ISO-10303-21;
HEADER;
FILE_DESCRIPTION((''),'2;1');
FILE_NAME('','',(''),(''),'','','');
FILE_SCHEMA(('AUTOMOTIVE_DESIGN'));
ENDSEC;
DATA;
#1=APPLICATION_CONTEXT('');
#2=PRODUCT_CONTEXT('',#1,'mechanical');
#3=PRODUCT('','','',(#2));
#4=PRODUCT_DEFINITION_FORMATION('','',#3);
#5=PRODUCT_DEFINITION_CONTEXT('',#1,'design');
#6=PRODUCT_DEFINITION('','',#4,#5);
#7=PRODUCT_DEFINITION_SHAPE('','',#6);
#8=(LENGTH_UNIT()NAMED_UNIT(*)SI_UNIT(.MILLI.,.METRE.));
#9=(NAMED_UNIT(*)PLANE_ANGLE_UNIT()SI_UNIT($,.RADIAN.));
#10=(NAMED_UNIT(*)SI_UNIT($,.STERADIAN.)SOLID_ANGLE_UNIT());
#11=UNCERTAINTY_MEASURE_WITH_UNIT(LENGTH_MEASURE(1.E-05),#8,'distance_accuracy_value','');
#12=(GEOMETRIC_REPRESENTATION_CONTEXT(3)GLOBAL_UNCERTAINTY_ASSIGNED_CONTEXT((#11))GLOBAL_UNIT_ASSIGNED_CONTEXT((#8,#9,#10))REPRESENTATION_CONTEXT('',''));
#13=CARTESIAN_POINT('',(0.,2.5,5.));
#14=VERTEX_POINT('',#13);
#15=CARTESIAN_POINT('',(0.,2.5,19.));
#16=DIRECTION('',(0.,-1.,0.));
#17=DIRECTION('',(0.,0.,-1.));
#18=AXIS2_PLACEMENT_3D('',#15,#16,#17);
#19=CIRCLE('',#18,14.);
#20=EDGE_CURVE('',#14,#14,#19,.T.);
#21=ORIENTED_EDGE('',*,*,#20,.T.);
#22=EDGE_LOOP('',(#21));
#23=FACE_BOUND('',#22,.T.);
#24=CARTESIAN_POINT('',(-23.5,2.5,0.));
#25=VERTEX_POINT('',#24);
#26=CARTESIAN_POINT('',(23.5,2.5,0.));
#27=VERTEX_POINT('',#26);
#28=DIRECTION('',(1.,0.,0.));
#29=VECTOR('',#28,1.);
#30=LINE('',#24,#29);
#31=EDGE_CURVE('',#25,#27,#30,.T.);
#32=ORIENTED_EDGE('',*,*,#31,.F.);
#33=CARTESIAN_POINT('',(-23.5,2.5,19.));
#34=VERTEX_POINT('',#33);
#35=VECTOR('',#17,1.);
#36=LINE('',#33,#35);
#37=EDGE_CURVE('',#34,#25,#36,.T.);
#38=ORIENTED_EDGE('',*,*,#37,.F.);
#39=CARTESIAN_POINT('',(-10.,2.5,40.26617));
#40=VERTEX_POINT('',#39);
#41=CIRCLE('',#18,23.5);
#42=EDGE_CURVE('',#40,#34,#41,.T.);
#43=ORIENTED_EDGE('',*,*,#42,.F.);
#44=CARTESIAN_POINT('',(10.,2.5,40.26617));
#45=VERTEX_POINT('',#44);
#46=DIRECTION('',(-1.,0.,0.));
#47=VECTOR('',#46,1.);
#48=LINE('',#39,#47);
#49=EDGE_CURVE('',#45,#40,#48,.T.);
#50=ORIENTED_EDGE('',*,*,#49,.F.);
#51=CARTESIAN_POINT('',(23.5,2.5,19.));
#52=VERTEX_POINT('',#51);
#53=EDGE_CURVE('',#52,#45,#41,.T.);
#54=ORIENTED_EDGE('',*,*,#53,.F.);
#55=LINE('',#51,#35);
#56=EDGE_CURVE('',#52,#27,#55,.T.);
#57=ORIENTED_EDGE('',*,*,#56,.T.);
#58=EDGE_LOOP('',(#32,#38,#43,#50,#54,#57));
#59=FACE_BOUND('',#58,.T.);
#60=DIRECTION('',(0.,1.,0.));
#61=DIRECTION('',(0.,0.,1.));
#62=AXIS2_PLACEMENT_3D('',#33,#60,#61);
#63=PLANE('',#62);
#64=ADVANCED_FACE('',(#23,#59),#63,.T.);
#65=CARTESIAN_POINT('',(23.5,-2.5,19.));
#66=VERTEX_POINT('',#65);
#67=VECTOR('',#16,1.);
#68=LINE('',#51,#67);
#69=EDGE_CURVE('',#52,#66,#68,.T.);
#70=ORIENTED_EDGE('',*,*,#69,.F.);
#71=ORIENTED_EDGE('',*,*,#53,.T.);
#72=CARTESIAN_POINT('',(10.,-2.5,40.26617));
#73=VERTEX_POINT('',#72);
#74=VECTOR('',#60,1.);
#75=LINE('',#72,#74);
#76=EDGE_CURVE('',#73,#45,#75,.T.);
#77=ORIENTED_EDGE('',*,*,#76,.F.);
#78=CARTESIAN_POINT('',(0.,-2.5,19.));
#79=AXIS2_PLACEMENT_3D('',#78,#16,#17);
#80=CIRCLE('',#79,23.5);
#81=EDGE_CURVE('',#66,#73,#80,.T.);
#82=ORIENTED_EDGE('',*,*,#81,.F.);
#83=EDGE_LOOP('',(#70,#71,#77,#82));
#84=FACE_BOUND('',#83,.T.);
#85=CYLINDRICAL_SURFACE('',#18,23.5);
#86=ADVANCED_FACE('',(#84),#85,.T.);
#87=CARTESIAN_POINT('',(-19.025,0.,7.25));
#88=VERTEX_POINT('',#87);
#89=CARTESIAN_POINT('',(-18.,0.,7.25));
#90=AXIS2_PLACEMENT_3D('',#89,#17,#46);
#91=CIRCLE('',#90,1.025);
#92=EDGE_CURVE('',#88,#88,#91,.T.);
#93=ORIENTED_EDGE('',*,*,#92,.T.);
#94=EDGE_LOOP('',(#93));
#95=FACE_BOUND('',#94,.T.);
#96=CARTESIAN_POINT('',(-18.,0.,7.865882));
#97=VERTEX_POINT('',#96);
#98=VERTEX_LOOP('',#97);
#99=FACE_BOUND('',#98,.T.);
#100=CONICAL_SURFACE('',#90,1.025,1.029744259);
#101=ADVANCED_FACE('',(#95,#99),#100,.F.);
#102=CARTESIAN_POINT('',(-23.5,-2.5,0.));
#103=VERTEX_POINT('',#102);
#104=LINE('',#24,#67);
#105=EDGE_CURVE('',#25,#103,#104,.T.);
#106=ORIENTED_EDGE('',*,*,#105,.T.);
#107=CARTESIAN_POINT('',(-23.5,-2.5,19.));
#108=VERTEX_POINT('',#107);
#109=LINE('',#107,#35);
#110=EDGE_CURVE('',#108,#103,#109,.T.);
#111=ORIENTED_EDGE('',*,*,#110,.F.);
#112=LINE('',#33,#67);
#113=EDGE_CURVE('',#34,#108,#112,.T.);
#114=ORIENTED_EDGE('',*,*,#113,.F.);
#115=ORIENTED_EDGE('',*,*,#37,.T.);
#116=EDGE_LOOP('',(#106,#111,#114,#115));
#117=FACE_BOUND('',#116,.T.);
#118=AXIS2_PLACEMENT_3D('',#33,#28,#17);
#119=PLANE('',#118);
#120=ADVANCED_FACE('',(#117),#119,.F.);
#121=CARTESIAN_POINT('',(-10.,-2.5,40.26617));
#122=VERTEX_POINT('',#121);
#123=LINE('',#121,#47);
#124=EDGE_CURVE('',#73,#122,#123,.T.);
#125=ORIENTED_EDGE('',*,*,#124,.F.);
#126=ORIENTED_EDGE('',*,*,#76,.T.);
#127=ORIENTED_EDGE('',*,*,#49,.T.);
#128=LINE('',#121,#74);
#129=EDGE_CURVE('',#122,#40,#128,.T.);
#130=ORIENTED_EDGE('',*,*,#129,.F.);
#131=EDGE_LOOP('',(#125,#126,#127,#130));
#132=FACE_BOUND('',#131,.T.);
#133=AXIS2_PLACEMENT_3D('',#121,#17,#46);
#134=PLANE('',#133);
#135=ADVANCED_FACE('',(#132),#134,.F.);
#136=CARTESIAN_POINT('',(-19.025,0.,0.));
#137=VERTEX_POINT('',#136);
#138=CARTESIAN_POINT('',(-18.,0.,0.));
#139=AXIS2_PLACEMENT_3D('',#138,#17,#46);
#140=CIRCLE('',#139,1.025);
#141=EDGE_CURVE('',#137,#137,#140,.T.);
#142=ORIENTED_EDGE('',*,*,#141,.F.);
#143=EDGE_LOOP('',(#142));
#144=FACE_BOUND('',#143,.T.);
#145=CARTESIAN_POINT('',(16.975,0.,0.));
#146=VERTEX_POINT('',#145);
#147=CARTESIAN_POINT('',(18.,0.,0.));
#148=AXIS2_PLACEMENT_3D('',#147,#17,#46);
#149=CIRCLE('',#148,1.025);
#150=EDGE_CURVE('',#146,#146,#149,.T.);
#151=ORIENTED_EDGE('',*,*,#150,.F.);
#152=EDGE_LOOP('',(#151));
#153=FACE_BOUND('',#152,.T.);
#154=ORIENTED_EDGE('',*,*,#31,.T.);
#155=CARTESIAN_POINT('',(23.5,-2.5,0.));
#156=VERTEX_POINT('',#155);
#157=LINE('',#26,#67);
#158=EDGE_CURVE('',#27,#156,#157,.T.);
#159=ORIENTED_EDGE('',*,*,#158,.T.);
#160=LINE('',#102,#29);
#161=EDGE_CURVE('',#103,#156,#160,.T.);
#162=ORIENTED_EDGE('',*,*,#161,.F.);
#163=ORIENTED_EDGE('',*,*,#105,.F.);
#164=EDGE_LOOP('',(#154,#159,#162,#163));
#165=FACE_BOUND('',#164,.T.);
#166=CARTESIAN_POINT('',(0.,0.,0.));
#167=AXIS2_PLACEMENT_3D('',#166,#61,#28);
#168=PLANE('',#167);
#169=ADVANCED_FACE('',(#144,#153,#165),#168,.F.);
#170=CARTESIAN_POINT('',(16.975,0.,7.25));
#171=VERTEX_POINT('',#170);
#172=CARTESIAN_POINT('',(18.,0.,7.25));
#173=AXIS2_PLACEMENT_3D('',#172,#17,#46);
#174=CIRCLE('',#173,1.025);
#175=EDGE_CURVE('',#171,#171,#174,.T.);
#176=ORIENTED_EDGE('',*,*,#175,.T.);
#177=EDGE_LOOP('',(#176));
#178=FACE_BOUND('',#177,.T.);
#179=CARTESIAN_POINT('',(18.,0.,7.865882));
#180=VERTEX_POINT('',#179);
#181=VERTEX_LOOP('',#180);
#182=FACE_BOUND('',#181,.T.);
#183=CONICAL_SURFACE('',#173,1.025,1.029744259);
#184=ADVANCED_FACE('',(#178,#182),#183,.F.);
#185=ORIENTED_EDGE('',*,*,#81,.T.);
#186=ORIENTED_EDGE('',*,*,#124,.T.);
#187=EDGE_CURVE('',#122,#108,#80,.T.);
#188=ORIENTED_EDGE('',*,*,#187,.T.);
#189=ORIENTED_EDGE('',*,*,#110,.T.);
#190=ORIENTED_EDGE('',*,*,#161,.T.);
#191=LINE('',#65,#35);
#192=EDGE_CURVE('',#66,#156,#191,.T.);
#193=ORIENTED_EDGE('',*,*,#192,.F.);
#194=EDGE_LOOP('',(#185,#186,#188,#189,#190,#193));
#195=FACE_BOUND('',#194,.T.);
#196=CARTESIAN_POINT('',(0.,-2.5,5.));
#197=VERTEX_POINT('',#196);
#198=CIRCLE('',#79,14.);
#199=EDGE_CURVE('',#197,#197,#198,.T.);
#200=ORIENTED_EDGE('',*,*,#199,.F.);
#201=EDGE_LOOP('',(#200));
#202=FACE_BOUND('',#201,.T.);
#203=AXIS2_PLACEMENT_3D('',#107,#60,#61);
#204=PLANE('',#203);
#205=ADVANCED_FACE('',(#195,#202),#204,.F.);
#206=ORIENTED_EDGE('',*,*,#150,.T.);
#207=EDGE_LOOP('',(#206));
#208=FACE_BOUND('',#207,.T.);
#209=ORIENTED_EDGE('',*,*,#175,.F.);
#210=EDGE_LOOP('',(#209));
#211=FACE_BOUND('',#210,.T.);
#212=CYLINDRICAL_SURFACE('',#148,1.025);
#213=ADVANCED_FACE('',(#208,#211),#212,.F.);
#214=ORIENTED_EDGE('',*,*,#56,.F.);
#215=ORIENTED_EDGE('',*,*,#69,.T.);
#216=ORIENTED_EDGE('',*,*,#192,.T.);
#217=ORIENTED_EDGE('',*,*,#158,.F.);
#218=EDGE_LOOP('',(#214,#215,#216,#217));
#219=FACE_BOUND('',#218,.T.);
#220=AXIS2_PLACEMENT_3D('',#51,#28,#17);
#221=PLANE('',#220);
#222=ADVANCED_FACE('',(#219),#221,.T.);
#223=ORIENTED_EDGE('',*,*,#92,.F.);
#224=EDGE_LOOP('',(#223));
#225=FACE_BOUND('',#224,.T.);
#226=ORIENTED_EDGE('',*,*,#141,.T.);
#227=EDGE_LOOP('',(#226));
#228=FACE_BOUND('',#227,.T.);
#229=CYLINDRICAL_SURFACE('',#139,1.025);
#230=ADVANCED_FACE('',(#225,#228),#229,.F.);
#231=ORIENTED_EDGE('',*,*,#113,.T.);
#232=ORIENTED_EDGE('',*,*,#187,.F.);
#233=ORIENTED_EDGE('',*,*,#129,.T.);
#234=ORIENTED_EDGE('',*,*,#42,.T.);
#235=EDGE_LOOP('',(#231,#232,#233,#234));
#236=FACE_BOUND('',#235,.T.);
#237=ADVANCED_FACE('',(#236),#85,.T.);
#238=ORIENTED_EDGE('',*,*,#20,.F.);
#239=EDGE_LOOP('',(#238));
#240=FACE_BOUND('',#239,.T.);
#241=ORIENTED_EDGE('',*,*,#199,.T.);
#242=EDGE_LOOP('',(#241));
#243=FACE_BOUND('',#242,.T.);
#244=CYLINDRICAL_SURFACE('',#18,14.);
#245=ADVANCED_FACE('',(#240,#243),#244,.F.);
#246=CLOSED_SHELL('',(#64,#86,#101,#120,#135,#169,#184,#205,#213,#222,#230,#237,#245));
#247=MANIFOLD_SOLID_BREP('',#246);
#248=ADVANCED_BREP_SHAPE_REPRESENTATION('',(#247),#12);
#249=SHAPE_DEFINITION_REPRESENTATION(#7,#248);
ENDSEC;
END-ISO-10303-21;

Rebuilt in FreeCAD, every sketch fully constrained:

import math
import FreeCAD as App
import Part
import Sketcher

doc = App.newDocument("Part")
body = doc.addObject("PartDesign::Body", "Body")

sketch1 = doc.addObject("Sketcher::SketchObject", "Sketch")
body.addObject(sketch1)
sketch1.AttachmentSupport = (doc.XY_Plane, [""])
sketch1.MapMode = "FlatFace"
sketch1.addGeometry([
    Part.LineSegment(App.Vector(-24, 2, 0), App.Vector(-24, -2, 0)),
    Part.LineSegment(App.Vector(-24, -2, 0), App.Vector(24, -2, 0)),
    Part.LineSegment(App.Vector(24, -2, 0), App.Vector(24, 2, 0)),
    Part.LineSegment(App.Vector(24, 2, 0), App.Vector(-24, 2, 0)),
], False)
sketch1.addConstraint([
    Sketcher.Constraint("Coincident", 0, 2, 1, 1),
    Sketcher.Constraint("Coincident", 1, 2, 2, 1),
    Sketcher.Constraint("Coincident", 2, 2, 3, 1),
    Sketcher.Constraint("Coincident", 3, 2, 0, 1),
    Sketcher.Constraint("Vertical", 0),
    Sketcher.Constraint("Horizontal", 1),
    Sketcher.Constraint("Vertical", 2),
    Sketcher.Constraint("Horizontal", 3),
    Sketcher.Constraint("Symmetric", 0, 2, 2, 2, -1, 1),
    Sketcher.Constraint("DistanceX", 1, 1, 1, 2, 47.0),
    Sketcher.Constraint("DistanceY", 0, 2, 0, 1, 5.0),
])
pad1 = doc.addObject("PartDesign::Pad", "Pad")
body.addObject(pad1)
pad1.Profile = sketch1
pad1.Length = 19

sketch2 = doc.addObject("Sketcher::SketchObject", "Sketch001")
body.addObject(sketch2)
sketch2.AttachmentSupport = (doc.XZ_Plane, [""])
sketch2.MapMode = "FlatFace"
sketch2.AttachmentOffset = App.Placement(App.Vector(0, 0, 2.5), App.Rotation())
sketch2.addGeometry(Part.Circle(App.Vector(0, 19, 0), App.Vector(0, 0, 1), 24), False)
sketch2.addConstraint([
    Sketcher.Constraint("PointOnObject", 0, 3, -2),
    Sketcher.Constraint("Diameter", 0, 47.0),
    Sketcher.Constraint("DistanceY", -1, 1, 0, 3, 19.0),
])
pad2 = doc.addObject("PartDesign::Pad", "Pad001")
body.addObject(pad2)
pad2.Profile = sketch2
pad2.Length = 5
pad2.Reversed = True

sketch3 = doc.addObject("Sketcher::SketchObject", "Sketch002")
body.addObject(sketch3)
sketch3.AttachmentSupport = (doc.XY_Plane, [""])
sketch3.MapMode = "FlatFace"
sketch3.addGeometry([
    Part.Circle(App.Vector(-18, 0, 0), App.Vector(0, 0, 1), 1),
    Part.Circle(App.Vector(18, 0, 0), App.Vector(0, 0, 1), 1),
], False)
sketch3.addConstraint([
    Sketcher.Constraint("Equal", 0, 1),
    Sketcher.Constraint("Symmetric", 0, 3, 1, 3, -1, 1),
    Sketcher.Constraint("PointOnObject", 0, 3, -1),
    Sketcher.Constraint("Diameter", 0, 2.05),
    Sketcher.Constraint("DistanceX", 0, 3, -1, 1, 18.0),
])
doc.recompute()
hole = doc.addObject("PartDesign::Hole", "Hole")
body.addObject(hole)
hole.Profile = sketch3
hole.ThreadType = "None"
hole.Diameter = 2.05
hole.DepthType = "Dimension"
hole.Depth = 7.25
hole.DrillPoint = "Angled"
hole.DrillPointAngle = 118
hole.Reversed = True

sketch4 = doc.addObject("Sketcher::SketchObject", "Sketch003")
body.addObject(sketch4)
sketch4.AttachmentSupport = (doc.XZ_Plane, [""])
sketch4.MapMode = "FlatFace"
sketch4.AttachmentOffset = App.Placement(App.Vector(0, 0, 2.5), App.Rotation())
sketch4.addGeometry(Part.Circle(App.Vector(0, 19, 0), App.Vector(0, 0, 1), 14), False)
sketch4.addConstraint([
    Sketcher.Constraint("PointOnObject", 0, 3, -2),
    Sketcher.Constraint("Diameter", 0, 28.0),
    Sketcher.Constraint("DistanceY", -1, 1, 0, 3, 19.0),
])
pocket1 = doc.addObject("PartDesign::Pocket", "Pocket")
body.addObject(pocket1)
pocket1.Profile = sketch4
pocket1.Length = 5

sketch5 = doc.addObject("Sketcher::SketchObject", "Sketch004")
body.addObject(sketch5)
sketch5.AttachmentSupport = (doc.XZ_Plane, [""])
sketch5.MapMode = "FlatFace"
sketch5.AttachmentOffset = App.Placement(App.Vector(0, 0, 2.5), App.Rotation())
sketch5.addGeometry([
    Part.LineSegment(App.Vector(137, 0, 0), App.Vector(-137, 0, 0)),
    Part.LineSegment(App.Vector(-137, 0, 0), App.Vector(-137, -246, 0)),
    Part.LineSegment(App.Vector(-137, -246, 0), App.Vector(137, -246, 0)),
    Part.LineSegment(App.Vector(137, -246, 0), App.Vector(137, 0, 0)),
], False)
sketch5.addConstraint([
    Sketcher.Constraint("Coincident", 0, 2, 1, 1),
    Sketcher.Constraint("Coincident", 1, 2, 2, 1),
    Sketcher.Constraint("Coincident", 2, 2, 3, 1),
    Sketcher.Constraint("Coincident", 3, 2, 0, 1),
    Sketcher.Constraint("Horizontal", 0),
    Sketcher.Constraint("Vertical", 1),
    Sketcher.Constraint("Horizontal", 2),
    Sketcher.Constraint("Vertical", 3),
    Sketcher.Constraint("Symmetric", 0, 2, 3, 2, -1, 1),
    Sketcher.Constraint("DistanceY", 1, 2, 1, 1, 246.264549),
    Sketcher.Constraint("DistanceX", 0, 2, 0, 1, 273.923182),
])
pocket2 = doc.addObject("PartDesign::Pocket", "Pocket001")
body.addObject(pocket2)
pocket2.Profile = sketch5
pocket2.Type = "ThroughAll"
pocket2.Midplane = True

sketch6 = doc.addObject("Sketcher::SketchObject", "Sketch005")
body.addObject(sketch6)
sketch6.AttachmentSupport = (doc.XZ_Plane, [""])
sketch6.MapMode = "FlatFace"
sketch6.AttachmentOffset = App.Placement(App.Vector(0, 0, -2.5), App.Rotation())
sketch6.addGeometry([
    Part.LineSegment(App.Vector(10, 40, 0), App.Vector(-10, 40, 0)),
    Part.ArcOfCircle(Part.Circle(App.Vector(0, 19, 0), App.Vector(0, 0, 1), 23), math.radians(65), math.radians(115)),
], False)
sketch6.addConstraint([
    Sketcher.Constraint("Coincident", 0, 1, 1, 1),
    Sketcher.Constraint("Coincident", 1, 2, 0, 2),
    Sketcher.Constraint("Horizontal", 0),
    Sketcher.Constraint("PointOnObject", 1, 3, -2),
    Sketcher.Constraint("Radius", 1, 23.5),
    Sketcher.Constraint("DistanceX", 0, 2, 0, 1, 20.0),
    Sketcher.Constraint("DistanceY", -1, 1, 1, 3, 19.0),
])
pocket3 = doc.addObject("PartDesign::Pocket", "Pocket002")
body.addObject(pocket3)
pocket3.Profile = sketch6
pocket3.Length = 5
pocket3.Reversed = True

doc.recompute()
